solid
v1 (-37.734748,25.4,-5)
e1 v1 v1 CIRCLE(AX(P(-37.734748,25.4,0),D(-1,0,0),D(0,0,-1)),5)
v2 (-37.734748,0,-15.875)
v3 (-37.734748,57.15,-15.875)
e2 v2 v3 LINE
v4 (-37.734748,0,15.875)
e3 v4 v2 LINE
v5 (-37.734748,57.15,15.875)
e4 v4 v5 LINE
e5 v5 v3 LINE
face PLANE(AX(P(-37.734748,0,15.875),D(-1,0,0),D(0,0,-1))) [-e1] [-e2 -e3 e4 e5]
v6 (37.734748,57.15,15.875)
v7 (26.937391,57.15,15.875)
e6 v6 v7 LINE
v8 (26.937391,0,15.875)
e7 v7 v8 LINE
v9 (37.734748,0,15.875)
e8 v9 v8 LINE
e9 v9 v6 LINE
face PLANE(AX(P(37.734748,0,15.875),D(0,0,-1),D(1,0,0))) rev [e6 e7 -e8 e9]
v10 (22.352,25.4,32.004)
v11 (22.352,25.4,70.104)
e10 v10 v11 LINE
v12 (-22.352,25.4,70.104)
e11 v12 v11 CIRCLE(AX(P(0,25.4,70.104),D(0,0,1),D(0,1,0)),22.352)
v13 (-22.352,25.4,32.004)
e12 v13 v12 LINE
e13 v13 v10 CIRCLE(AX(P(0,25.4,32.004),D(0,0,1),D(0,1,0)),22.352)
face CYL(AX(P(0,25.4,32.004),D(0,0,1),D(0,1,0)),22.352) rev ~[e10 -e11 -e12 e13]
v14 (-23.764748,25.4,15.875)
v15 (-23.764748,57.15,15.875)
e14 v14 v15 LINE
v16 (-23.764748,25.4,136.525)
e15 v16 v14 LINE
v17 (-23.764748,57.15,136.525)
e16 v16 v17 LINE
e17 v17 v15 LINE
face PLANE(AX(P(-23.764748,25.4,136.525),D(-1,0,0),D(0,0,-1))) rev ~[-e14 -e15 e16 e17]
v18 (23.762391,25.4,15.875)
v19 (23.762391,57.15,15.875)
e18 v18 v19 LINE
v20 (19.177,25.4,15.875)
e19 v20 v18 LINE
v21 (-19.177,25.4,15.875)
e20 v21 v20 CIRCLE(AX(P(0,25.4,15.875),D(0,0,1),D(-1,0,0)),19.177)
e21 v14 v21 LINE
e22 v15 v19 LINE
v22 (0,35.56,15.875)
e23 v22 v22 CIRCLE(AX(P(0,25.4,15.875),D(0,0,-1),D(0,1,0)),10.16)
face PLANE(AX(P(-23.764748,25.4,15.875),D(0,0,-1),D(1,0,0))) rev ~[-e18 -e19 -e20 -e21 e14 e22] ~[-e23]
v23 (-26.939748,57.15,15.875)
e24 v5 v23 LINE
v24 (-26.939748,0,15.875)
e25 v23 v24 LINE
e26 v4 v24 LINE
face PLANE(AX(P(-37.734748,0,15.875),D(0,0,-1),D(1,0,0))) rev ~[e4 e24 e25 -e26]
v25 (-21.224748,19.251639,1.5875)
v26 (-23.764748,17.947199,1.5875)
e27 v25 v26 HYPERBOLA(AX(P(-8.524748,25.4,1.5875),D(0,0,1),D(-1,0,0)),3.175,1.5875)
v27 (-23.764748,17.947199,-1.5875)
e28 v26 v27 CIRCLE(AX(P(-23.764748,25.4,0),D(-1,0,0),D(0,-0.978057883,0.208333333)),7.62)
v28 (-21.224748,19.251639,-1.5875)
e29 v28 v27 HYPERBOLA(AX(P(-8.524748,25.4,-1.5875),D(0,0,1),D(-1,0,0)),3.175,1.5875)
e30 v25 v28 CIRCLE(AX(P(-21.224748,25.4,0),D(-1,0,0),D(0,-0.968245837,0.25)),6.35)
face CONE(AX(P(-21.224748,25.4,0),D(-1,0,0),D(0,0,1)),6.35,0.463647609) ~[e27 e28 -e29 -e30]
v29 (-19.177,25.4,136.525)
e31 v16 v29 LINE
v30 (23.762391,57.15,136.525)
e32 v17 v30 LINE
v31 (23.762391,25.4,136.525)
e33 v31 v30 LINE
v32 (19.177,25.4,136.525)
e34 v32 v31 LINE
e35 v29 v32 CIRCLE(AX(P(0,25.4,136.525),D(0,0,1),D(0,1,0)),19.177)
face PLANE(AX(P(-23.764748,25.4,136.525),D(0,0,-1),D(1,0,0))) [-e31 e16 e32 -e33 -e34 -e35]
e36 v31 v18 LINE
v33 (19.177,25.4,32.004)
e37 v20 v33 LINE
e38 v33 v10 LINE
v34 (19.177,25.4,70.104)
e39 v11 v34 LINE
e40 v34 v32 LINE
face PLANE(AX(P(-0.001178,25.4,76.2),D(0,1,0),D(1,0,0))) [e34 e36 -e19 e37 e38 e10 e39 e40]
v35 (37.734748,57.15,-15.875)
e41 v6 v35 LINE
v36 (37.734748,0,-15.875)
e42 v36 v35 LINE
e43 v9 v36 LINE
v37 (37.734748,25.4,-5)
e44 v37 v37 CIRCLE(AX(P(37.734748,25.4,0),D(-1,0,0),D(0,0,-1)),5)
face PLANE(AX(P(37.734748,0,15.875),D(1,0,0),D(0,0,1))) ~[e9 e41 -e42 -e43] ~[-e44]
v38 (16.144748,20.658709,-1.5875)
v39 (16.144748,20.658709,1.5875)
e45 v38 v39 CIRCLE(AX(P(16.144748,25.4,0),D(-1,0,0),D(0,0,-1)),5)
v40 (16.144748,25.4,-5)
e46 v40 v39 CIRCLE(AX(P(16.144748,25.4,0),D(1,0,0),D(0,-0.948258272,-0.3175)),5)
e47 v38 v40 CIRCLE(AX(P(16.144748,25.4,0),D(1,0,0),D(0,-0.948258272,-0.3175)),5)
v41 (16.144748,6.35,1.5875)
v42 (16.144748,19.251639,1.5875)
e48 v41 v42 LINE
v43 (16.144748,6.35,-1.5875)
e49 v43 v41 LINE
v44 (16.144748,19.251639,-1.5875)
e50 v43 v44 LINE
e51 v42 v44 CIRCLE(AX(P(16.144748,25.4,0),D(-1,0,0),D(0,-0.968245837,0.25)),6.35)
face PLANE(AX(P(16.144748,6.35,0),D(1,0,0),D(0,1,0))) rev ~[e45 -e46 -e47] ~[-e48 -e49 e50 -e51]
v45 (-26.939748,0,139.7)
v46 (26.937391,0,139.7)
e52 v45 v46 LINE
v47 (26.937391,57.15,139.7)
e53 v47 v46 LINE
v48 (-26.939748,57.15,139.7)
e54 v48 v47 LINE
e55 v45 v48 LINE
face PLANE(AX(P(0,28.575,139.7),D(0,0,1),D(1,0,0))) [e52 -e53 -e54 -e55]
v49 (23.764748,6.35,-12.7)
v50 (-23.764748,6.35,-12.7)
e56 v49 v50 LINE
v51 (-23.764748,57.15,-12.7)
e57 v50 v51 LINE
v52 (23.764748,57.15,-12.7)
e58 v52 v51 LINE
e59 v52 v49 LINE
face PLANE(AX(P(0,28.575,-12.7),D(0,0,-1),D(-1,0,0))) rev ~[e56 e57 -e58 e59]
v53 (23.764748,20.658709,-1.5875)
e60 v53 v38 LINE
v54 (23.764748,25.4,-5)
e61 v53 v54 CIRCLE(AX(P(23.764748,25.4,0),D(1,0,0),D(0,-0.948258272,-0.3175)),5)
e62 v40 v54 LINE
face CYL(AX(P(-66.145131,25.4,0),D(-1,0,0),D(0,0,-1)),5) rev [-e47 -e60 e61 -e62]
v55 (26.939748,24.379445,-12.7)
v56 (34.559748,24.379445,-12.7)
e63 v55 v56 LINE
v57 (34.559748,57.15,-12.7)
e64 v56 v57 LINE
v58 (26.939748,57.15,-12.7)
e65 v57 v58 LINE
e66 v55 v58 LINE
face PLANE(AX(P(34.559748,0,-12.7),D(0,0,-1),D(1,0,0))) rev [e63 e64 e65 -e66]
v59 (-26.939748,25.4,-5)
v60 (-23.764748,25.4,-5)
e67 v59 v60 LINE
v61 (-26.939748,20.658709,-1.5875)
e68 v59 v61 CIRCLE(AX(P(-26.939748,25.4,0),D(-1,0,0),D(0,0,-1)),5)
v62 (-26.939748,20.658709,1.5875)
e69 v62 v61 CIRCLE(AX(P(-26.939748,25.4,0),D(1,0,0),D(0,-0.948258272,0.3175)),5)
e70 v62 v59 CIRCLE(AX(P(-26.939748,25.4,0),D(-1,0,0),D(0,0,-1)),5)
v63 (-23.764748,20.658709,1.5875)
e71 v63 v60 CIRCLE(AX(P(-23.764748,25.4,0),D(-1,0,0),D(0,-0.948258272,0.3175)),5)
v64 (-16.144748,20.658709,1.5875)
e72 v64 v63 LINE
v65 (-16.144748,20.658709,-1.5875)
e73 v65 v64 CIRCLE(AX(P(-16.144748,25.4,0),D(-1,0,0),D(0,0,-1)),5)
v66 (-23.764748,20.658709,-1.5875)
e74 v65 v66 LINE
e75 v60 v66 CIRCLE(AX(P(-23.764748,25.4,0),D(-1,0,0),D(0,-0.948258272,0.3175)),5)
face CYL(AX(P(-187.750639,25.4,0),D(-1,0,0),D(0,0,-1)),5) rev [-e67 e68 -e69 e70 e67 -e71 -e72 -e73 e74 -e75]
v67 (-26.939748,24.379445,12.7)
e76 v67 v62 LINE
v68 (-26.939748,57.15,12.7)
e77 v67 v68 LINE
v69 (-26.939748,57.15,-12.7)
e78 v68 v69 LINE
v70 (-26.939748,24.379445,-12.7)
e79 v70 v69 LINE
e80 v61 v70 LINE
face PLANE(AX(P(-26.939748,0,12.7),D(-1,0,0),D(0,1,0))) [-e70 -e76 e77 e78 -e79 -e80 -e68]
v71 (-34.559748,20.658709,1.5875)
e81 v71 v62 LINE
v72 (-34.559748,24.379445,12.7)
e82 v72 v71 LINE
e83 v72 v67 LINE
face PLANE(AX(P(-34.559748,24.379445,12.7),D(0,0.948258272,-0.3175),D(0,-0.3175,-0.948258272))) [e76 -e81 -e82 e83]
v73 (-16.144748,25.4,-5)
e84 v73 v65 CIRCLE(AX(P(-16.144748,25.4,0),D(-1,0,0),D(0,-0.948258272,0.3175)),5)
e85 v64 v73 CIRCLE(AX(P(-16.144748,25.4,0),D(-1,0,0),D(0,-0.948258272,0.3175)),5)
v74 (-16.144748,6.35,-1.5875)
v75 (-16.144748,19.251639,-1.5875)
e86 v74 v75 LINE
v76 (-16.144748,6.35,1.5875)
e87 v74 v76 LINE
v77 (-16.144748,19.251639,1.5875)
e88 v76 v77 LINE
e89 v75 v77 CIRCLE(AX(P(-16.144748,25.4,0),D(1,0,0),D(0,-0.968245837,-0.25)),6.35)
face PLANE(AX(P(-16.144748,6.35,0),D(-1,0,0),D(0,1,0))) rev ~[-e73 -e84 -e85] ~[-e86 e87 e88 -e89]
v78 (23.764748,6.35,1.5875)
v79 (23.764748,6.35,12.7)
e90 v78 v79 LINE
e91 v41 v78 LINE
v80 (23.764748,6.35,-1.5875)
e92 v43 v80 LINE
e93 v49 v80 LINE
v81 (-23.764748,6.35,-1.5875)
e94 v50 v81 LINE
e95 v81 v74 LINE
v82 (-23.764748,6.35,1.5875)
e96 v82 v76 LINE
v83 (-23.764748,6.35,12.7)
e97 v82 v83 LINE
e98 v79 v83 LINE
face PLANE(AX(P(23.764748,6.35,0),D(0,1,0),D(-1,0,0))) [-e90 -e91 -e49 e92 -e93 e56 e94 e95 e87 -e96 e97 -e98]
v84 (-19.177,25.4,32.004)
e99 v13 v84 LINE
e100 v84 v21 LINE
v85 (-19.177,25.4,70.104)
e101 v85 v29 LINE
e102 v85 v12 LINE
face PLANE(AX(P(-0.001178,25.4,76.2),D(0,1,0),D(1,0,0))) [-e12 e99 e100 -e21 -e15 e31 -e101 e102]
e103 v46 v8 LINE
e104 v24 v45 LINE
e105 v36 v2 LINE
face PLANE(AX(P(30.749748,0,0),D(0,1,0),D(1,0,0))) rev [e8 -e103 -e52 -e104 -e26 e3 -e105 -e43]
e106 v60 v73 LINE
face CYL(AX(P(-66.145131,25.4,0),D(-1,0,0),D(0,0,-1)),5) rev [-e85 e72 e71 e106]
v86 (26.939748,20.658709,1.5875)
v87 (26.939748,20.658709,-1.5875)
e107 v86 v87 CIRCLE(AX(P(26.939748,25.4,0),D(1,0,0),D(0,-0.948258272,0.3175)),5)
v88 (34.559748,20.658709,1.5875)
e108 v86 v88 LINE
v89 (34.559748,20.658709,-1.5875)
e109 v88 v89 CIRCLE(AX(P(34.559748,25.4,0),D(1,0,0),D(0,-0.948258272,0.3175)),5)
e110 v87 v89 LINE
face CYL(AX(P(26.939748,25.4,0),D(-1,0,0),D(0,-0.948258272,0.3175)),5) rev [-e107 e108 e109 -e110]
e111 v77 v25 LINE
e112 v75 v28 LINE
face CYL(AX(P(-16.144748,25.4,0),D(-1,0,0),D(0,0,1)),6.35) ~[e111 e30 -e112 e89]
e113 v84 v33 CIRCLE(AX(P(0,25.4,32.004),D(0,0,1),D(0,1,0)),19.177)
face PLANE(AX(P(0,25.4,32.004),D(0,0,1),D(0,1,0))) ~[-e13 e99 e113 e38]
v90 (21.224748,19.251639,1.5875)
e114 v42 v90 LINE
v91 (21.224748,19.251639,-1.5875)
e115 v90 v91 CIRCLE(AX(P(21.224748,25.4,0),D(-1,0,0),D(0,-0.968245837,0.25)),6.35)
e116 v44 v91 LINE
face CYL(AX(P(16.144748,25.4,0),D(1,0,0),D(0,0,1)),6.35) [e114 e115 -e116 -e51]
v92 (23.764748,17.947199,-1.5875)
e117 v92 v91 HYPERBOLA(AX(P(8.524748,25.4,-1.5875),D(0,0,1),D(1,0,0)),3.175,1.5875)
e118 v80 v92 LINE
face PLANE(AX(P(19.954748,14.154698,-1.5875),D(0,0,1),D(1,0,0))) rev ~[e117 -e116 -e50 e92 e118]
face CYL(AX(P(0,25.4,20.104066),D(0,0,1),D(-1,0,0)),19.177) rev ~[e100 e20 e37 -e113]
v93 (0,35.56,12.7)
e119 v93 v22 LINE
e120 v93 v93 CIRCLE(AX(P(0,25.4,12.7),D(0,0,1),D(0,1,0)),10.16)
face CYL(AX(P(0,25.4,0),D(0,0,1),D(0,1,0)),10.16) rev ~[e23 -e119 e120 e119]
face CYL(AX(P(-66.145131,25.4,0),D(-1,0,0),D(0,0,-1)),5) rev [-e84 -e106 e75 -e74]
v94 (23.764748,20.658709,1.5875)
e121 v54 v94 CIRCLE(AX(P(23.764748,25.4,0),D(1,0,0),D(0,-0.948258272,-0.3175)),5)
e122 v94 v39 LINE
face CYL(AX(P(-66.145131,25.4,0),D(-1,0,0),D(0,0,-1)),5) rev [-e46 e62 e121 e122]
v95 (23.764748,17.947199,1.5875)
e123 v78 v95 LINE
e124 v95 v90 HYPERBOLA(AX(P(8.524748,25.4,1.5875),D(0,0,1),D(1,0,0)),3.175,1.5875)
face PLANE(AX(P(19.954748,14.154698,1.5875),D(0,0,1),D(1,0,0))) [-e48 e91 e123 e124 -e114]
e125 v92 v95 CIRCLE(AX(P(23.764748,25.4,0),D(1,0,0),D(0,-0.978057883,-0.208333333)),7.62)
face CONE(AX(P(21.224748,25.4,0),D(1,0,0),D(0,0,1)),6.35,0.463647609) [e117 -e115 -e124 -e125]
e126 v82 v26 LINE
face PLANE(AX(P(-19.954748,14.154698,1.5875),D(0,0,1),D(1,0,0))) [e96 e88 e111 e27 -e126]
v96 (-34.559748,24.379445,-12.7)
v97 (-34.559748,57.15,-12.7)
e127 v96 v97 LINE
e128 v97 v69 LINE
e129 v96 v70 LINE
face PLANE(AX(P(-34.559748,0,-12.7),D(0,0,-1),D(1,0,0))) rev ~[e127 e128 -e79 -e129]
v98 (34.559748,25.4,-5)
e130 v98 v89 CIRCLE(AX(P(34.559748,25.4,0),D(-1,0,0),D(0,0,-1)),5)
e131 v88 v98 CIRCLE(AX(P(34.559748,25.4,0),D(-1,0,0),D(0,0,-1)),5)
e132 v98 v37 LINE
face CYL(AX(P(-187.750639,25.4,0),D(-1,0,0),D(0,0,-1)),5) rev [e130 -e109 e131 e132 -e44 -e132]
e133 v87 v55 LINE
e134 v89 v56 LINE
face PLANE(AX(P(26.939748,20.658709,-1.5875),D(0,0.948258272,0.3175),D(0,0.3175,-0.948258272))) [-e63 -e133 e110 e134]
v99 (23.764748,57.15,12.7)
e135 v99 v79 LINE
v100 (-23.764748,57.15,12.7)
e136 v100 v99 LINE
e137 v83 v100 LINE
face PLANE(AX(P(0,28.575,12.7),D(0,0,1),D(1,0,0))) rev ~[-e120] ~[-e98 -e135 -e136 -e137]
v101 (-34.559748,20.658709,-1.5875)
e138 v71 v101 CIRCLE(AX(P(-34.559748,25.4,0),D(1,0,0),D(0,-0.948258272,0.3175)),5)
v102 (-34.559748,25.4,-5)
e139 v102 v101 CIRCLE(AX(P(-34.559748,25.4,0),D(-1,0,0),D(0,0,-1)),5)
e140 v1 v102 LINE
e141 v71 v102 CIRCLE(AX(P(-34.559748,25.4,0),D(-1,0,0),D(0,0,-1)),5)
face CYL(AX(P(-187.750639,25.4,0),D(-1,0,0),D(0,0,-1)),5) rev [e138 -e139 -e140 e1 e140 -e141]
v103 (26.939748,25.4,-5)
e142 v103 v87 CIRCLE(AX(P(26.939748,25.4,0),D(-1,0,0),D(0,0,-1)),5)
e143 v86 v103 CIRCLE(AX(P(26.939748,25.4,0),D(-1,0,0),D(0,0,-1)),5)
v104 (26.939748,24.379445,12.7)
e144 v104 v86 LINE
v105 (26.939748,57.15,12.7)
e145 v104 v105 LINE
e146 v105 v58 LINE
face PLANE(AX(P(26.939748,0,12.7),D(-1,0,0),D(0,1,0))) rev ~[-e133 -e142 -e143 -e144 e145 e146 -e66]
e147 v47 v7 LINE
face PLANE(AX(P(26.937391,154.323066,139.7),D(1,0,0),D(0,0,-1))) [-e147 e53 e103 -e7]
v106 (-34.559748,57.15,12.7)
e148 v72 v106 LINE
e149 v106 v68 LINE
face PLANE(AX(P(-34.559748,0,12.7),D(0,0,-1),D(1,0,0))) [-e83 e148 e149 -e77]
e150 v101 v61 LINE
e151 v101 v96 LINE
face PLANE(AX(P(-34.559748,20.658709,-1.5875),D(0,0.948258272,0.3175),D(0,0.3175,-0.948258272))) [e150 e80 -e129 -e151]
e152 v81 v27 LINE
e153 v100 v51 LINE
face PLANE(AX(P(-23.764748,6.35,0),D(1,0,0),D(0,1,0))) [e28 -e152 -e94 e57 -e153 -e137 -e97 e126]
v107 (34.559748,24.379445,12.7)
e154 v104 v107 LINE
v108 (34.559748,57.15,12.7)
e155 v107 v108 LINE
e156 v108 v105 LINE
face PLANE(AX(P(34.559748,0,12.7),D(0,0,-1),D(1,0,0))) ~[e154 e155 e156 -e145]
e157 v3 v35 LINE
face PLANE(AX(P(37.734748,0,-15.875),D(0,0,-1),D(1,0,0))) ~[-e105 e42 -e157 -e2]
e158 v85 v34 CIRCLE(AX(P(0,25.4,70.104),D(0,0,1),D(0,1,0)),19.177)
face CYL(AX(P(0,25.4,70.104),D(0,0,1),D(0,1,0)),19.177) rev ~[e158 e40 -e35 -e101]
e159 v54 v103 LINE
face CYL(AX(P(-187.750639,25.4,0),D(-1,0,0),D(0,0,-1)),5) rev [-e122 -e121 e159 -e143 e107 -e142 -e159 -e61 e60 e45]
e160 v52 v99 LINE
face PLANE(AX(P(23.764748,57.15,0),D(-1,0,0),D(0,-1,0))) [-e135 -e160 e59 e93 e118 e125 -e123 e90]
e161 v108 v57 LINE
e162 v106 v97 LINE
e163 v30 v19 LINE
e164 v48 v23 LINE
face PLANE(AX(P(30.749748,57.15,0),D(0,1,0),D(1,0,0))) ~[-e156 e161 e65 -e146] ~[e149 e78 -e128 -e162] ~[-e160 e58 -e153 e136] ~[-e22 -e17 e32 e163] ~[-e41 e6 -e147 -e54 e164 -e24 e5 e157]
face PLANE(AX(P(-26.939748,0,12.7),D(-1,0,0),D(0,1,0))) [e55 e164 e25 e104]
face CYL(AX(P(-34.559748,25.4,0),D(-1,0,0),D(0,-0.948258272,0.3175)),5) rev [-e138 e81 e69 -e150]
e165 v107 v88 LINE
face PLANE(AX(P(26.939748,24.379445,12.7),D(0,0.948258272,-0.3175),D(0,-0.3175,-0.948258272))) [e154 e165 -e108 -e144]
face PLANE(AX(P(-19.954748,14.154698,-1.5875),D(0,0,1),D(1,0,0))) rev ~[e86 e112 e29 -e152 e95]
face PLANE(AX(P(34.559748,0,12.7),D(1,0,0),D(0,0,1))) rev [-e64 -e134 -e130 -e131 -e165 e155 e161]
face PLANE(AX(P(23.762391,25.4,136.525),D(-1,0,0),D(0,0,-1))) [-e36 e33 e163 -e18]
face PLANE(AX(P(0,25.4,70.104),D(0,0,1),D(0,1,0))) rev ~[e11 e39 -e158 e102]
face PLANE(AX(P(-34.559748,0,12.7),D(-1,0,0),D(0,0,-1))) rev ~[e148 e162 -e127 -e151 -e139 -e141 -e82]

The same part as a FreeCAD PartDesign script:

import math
import FreeCAD as App
import Part
import Sketcher
from FreeCAD import Vector
Q = App.Units.Quantity


def add_polygon(sketch, points):
    """Adds a closed chain of lines whose ends are joined by coincident constraints."""
    first, n = sketch.GeometryCount, len(points)
    for a, b in zip(points, points[1:] + points[:1]):
        sketch.addGeometry(Part.LineSegment(App.Vector(*a, 0), App.Vector(*b, 0)), False)
    for i in range(n):
        sketch.addConstraint(Sketcher.Constraint("Coincident", first + i, 2, first + (i + 1) % n, 1))

doc = App.newDocument("Part")
body = doc.addObject("PartDesign::Body", "Body")

# Sketch on XY plane
sketch1 = body.newObject("Sketcher::SketchObject", "Sketch")
sketch1.AttachmentSupport = (doc.getObject("XY_Plane"), [""])
sketch1.MapMode = "FlatFace"
add_polygon(sketch1, [(-26.9, 0), (26.9, 0), (26.9, 57.1), (23.8, 57.1), (23.8, 6.3), (-23.8, 6.3), (-23.8, 57.1), (-26.9, 57.1)])  # lines 0-7
sketch1.addConstraint([
    Sketcher.Constraint("Horizontal", 0),
    Sketcher.Constraint("Vertical", 1),
    Sketcher.Constraint("Horizontal", 2),
    Sketcher.Constraint("Vertical", 3),
    Sketcher.Constraint("Horizontal", 4),
    Sketcher.Constraint("Vertical", 5),
    Sketcher.Constraint("Horizontal", 6),
    Sketcher.Constraint("Vertical", 7),
    Sketcher.Constraint("Symmetric", 0, 2, 7, 2, -1, 1),
    Sketcher.Constraint("Symmetric", 2, 2, 5, 2, -2),
    Sketcher.Constraint("DistanceY", 3, 2, 3, 1, Q("2 in")),
    Sketcher.Constraint("DistanceY", 1, 1, 1, 2, Q("2.25 in")),
    Sketcher.Constraint("DistanceX", 2, 2, 2, 1, Q("0.125 in")),
    Sketcher.Constraint("DistanceX", 0, 1, 0, 2, 53.879496),
])
pad1 = body.newObject("PartDesign::Pad", "Pad")
pad1.Profile = sketch1
pad1.Length = Q("1 in")
pad1.Midplane = True

# Sketch on XY plane
sketch2 = body.newObject("Sketcher::SketchObject", "Sketch001")
sketch2.AttachmentSupport = (doc.getObject("XY_Plane"), [""])
sketch2.MapMode = "FlatFace"
sketch2.AttachmentOffset = App.Placement(Vector(0, 0, -0.5 * 25.4), App.Rotation())
add_polygon(sketch2, [(27, 57), (27, 0), (-27, 0), (-27, 57)])  # lines 0-3
sketch2.addConstraint([
    Sketcher.Constraint("Vertical", 0),
    Sketcher.Constraint("Horizontal", 1),
    Sketcher.Constraint("Vertical", 2),
    Sketcher.Constraint("Horizontal", 3),
    Sketcher.Constraint("Symmetric", 0, 2, 1, 2, -1, 1),
    Sketcher.Constraint("DistanceY", 0, 2, 0, 1, Q("2.25 in")),
    Sketcher.Constraint("DistanceX", 1, 2, 1, 1, 53.879496),
])
pad2 = body.newObject("PartDesign::Pad", "Pad001")
pad2.Profile = sketch2
pad2.Length = Q("0.125 in")
pad2.Reversed = True

# Sketch on XY plane
sketch3 = body.newObject("Sketcher::SketchObject", "Sketch002")
sketch3.AttachmentSupport = (doc.getObject("XY_Plane"), [""])
sketch3.MapMode = "FlatFace"
add_polygon(sketch3, [(-23.8, 25.4), (-16.1, 25.4), (-16.1, 31.8), (-21.2, 31.8), (-23.8, 33)])  # lines 0-4
add_polygon(sketch3, [(23.8, 25.4), (23.8, 33), (21.2, 31.8), (16.1, 31.8), (16.1, 25.4)])  # lines 5-9
sketch3.addGeometry(Part.LineSegment(Vector(-23.8, 25.4, 0), Vector(23.8, 25.4, 0)), True)  # axis
sketch3.addConstraint([
    Sketcher.Constraint("Horizontal", 0),
    Sketcher.Constraint("Vertical", 1),
    Sketcher.Constraint("Horizontal", 2),
    Sketcher.Constraint("Vertical", 4),
    Sketcher.Constraint("Vertical", 5),
    Sketcher.Constraint("Horizontal", 7),
    Sketcher.Constraint("Vertical", 8),
    Sketcher.Constraint("Horizontal", 9),
    Sketcher.Constraint("Horizontal", 10),
    Sketcher.Constraint("Coincident", 10, 1, 4, 2),
    Sketcher.Constraint("Coincident", 10, 2, 9, 2),
    Sketcher.Constraint("Symmetric", 3, 2, 5, 2, -2),
    Sketcher.Constraint("Symmetric", 2, 2, 6, 2, -2),
    Sketcher.Constraint("Equal", 2, 7),
    Sketcher.Constraint("Equal", 9, 4),
    Sketcher.Constraint("DistanceX", 0, 1, 0, 2, Q("0.3 in")),
    Sketcher.Constraint("DistanceX", 2, 2, 2, 1, Q("0.2 in")),
    Sketcher.Constraint("DistanceY", -1, 1, 0, 2, Q("1 in")),
    Sketcher.Constraint("DistanceY", 1, 1, 1, 2, Q("0.25 in")),
    Sketcher.Constraint("DistanceX", 10, 1, 10, 2, 47.529496),
])
revolution = body.newObject("PartDesign::Revolution", "Revolution")
revolution.Profile = sketch3
revolution.ReferenceAxis = (sketch3, ["Axis0"])
revolution.Angle = 360

# Sketch on YZ plane
sketch4 = body.newObject("Sketcher::SketchObject", "Sketch003")
sketch4.AttachmentSupport = (doc.getObject("YZ_Plane"), [""])
sketch4.MapMode = "FlatFace"
sketch4.addGeometry(Part.Circle(Vector(25, 0, 0), Vector(0, 0, 1), 5), False)
sketch4.addConstraint([
    Sketcher.Constraint("PointOnObject", 0, 3, -1),
    Sketcher.Constraint("DistanceX", -1, 1, 0, 3, Q("1 in")),
    Sketcher.Constraint("Diameter", 0, 10.0),
])
pocket1 = body.newObject("PartDesign::Pocket", "Pocket")
pocket1.Profile = sketch4
pocket1.Type = "ThroughAll"
pocket1.Midplane = True

# Sketch on XZ plane
sketch5 = body.newObject("Sketcher::SketchObject", "Sketch004")
sketch5.AttachmentSupport = (doc.getObject("XZ_Plane"), [""])
sketch5.MapMode = "FlatFace"
add_polygon(sketch5, [(-26.9, -15.9), (-26.9, -41.3), (26.9, -41.3), (26.9, -15.9)])  # lines 0-3
sketch5.addGeometry(Part.Circle(Vector(-17.5, -28.6, 0), Vector(0, 0, 1), 3.5), False)  # 4
sketch5.addGeometry(Part.Circle(Vector(7.9, -28.6, 0), Vector(0, 0, 1), 3.5), False)  # 5
sketch5.addConstraint([
    Sketcher.Constraint("Vertical", 0),
    Sketcher.Constraint("Horizontal", 1),
    Sketcher.Constraint("Vertical", 2),
    Sketcher.Constraint("Horizontal", 3),
    Sketcher.Constraint("Equal", 4, 5),
    Sketcher.Constraint("Horizontal", 4, 3, 5, 3),
    Sketcher.Constraint("DistanceY", 0, 2, 0, 1, Q("1 in")),
    Sketcher.Constraint("Diameter", 4, Q("0.275 in")),
    Sketcher.Constraint("DistanceX", 4, 3, 5, 3, Q("1 in")),
    Sketcher.Constraint("DistanceY", 0, 2, 4, 3, Q("0.5 in")),
    Sketcher.Constraint("DistanceX", 5, 3, 1, 2, Q("0.75 in")),
    Sketcher.Constraint("DistanceY", 4, 3, -1, 1, Q("1.125 in")),
    Sketcher.Constraint("DistanceX", 1, 1, 1, 2, 53.879496),
    Sketcher.Constraint("DistanceX", 0, 2, -1, 1, 26.939748),
])
pad3 = body.newObject("PartDesign::Pad", "Pad002")
pad3.Profile = sketch5
pad3.Length = Q("0.25 in")
pad3.Reversed = True

# Sketch on XY plane
sketch6 = body.newObject("Sketcher::SketchObject", "Sketch005")
sketch6.AttachmentSupport = (doc.getObject("XY_Plane"), [""])
sketch6.MapMode = "FlatFace"
add_polygon(sketch6, [(-24, 22), (-24, 6), (-16, 6), (-16, 22)])  # lines 0-3
add_polygon(sketch6, [(16, 22), (16, 6), (24, 6), (24, 22)])  # lines 4-7
sketch6.addConstraint([
    Sketcher.Constraint("Vertical", 0),
    Sketcher.Constraint("Horizontal", 1),
    Sketcher.Constraint("Vertical", 2),
    Sketcher.Constraint("Horizontal", 3),
    Sketcher.Constraint("Vertical", 4),
    Sketcher.Constraint("Horizontal", 5),
    Sketcher.Constraint("Vertical", 6),
    Sketcher.Constraint("Horizontal", 7),
    Sketcher.Constraint("Symmetric", 1, 2, 4, 2, -2),
    Sketcher.Constraint("Symmetric", 3, 2, 6, 2, -2),
    Sketcher.Constraint("DistanceX", 1, 1, 1, 2, Q("0.3 in")),
    Sketcher.Constraint("DistanceY", -1, 1, 0, 2, Q("0.25 in")),
    Sketcher.Constraint("DistanceY", 0, 2, 0, 1, 15.609397),
    Sketcher.Constraint("DistanceX", 0, 2, -1, 1, 23.764748),
])
pad4 = body.newObject("PartDesign::Pad", "Pad003")
pad4.Profile = sketch6
pad4.Length = Q("0.125 in")
pad4.Midplane = True

# Sketch on XY plane
sketch7 = body.newObject("Sketcher::SketchObject", "Sketch006")
sketch7.AttachmentSupport = (doc.getObject("XY_Plane"), [""])
sketch7.MapMode = "FlatFace"
sketch7.AttachmentOffset = App.Placement(Vector(0, 0, 0.5 * 25.4), App.Rotation())
add_polygon(sketch7, [(-27, 57), (-27, 0), (27, 0), (27, 57)])  # lines 0-3
sketch7.addConstraint([
    Sketcher.Constraint("Vertical", 0),
    Sketcher.Constraint("Horizontal", 1),
    Sketcher.Constraint("Vertical", 2),
    Sketcher.Constraint("Horizontal", 3),
    Sketcher.Constraint("Symmetric", 0, 2, 1, 2, -1, 1),
    Sketcher.Constraint("DistanceY", 0, 2, 0, 1, Q("2.25 in")),
    Sketcher.Constraint("DistanceX", 1, 1, 1, 2, 53.879496),
])
pad5 = body.newObject("PartDesign::Pad", "Pad004")
pad5.Profile = sketch7
pad5.Length = Q("5 in")

# Sketch on YZ plane
sketch8 = body.newObject("Sketcher::SketchObject", "Sketch007")
sketch8.AttachmentSupport = (doc.getObject("YZ_Plane"), [""])
sketch8.MapMode = "FlatFace"
add_polygon(sketch8, [(47.8, 70.1), (44.6, 70.1), (44.6, 136.5), (25.4, 136.5), (25.4, 0), (35.6, 0), (35.6, 20.1), (44.6, 20.1), (44.6, 32), (47.8, 32)])  # lines 0-9
sketch8.addGeometry(Part.LineSegment(Vector(25.4, 0, 0), Vector(25.4, 136.5, 0)), True)  # axis
sketch8.addConstraint([
    Sketcher.Constraint("Horizontal", 0),
    Sketcher.Constraint("Vertical", 1),
    Sketcher.Constraint("Horizontal", 2),
    Sketcher.Constraint("Vertical", 3),
    Sketcher.Constraint("Horizontal", 4),
    Sketcher.Constraint("Vertical", 5),
    Sketcher.Constraint("Horizontal", 6),
    Sketcher.Constraint("Vertical", 7),
    Sketcher.Constraint("Horizontal", 8),
    Sketcher.Constraint("Vertical", 9),
    Sketcher.Constraint("Vertical", 10),
    Sketcher.Constraint("Coincident", 10, 1, 3, 2),
    Sketcher.Constraint("PointOnObject", 3, 2, -1),
    Sketcher.Constraint("Horizontal", 1, 2, 10, 2),
    Sketcher.Constraint("Vertical", 1, 2, 6, 2),
    Sketcher.Constraint("DistanceX", 4, 1, 4, 2, Q("0.4 in")),
    Sketcher.Constraint("DistanceY", 9, 1, 9, 2, Q("1.5 in")),
    Sketcher.Constraint("DistanceX", -1, 1, 2, 2, Q("1 in")),
    Sketcher.Constraint("DistanceX", 0, 2, 0, 1, Q("0.125 in")),
    Sketcher.Constraint("DistanceX", 2, 2, 2, 1, Q("0.755 in")),
    Sketcher.Constraint("DistanceY", 1, 1, 1, 2, Q("2.615 in")),
    Sketcher.Constraint("DistanceY", 3, 2, 3, 1, Q("5.375 in")),
    Sketcher.Constraint("DistanceY", 5, 1, 5, 2, 20.104066),
])
groove = body.newObject("PartDesign::Groove", "Groove")
groove.Profile = sketch8
groove.ReferenceAxis = (sketch8, ["Axis0"])
groove.Angle = 360

# Sketch on XZ plane
sketch9 = body.newObject("Sketcher::SketchObject", "Sketch008")
sketch9.AttachmentSupport = (doc.getObject("XZ_Plane"), [""])
sketch9.MapMode = "FlatFace"
add_polygon(sketch9, [(-26.939748, 15.470939), (-26.939748, 139.7), (-26.942105, 139.7), (-26.942105, 15.470939)])  # lines 0-3
add_polygon(sketch9, [(26.939748, 15.470939), (26.939748, 139.7), (26.937391, 139.7), (26.937391, 15.470939)])  # lines 4-7
sketch9.addConstraint([
    Sketcher.Constraint("Vertical", 0),
    Sketcher.Constraint("Horizontal", 1),
    Sketcher.Constraint("Vertical", 2),
    Sketcher.Constraint("Horizontal", 3),
    Sketcher.Constraint("Vertical", 4),
    Sketcher.Constraint("Horizontal", 5),
    Sketcher.Constraint("Vertical", 6),
    Sketcher.Constraint("Horizontal", 7),
    Sketcher.Constraint("Symmetric", 0, 2, 4, 2, -2),
    Sketcher.Constraint("Horizontal", 3, 2, 6, 2),
    Sketcher.Constraint("Equal", 3, 5),
    Sketcher.Constraint("DistanceY", -1, 1, 0, 2, Q("5.5 in")),
    Sketcher.Constraint("DistanceY", 0, 1, 0, 2, 124.229061),
    Sketcher.Constraint("DistanceX", 1, 2, 1, 1, 0.002357),
    Sketcher.Constraint("DistanceX", 0, 2, -1, 1, 26.939748),
])
pocket2 = body.newObject("PartDesign::Pocket", "Pocket001")
pocket2.Profile = sketch9
pocket2.Type = "ThroughAll"
pocket2.Midplane = True

# Sketch on XZ plane
sketch10 = body.newObject("Sketcher::SketchObject", "Sketch009")
sketch10.AttachmentSupport = (doc.getObject("XZ_Plane"), [""])
sketch10.MapMode = "FlatFace"
sketch10.AttachmentOffset = App.Placement(Vector(0, 0, -1 * 25.4), App.Rotation())
add_polygon(sketch10, [(-24, 16), (-24, 137), (24, 137), (24, 16)])  # lines 0-3
sketch10.addConstraint([
    Sketcher.Constraint("Vertical", 0),
    Sketcher.Constraint("Horizontal", 1),
    Sketcher.Constraint("Vertical", 2),
    Sketcher.Constraint("Horizontal", 3),
    Sketcher.Constraint("DistanceY", 0, 1, 0, 2, Q("4.75 in")),
    Sketcher.Constraint("DistanceY", -1, 1, 0, 2, Q("5.375 in")),
    Sketcher.Constraint("DistanceX", 1, 1, 1, 2, 47.527139),
    Sketcher.Constraint("DistanceX", 0, 2, -1, 1, 23.764748),
])
pocket3 = body.newObject("PartDesign::Pocket", "Pocket002")
pocket3.Profile = sketch10
pocket3.Length = Q("1.25 in")

# Sketch on XY plane
sketch11 = body.newObject("Sketcher::SketchObject", "Sketch010")
sketch11.AttachmentSupport = (doc.getObject("XY_Plane"), [""])
sketch11.MapMode = "FlatFace"
sketch11.AttachmentOffset = App.Placement(Vector(0, 0, 20.104066), App.Rotation())
sketch11.addGeometry([
    Part.LineSegment(Vector(-10, 25, 0), Vector(-19, 25, 0)),
    Part.ArcOfCircle(Part.Circle(Vector(0, 25, 0), Vector(0, 0, 1), 19), math.radians(180), math.radians(360)),
    Part.LineSegment(Vector(19, 25, 0), Vector(10, 25, 0)),
    Part.ArcOfCircle(Part.Circle(Vector(0, 25, 0), Vector(0, 0, 1), 10), math.radians(180), math.radians(360)),
], False)
sketch11.addConstraint([
    Sketcher.Constraint("Coincident", 0, 2, 1, 1),
    Sketcher.Constraint("Coincident", 1, 2, 2, 1),
    Sketcher.Constraint("Coincident", 2, 2, 3, 2),
    Sketcher.Constraint("Coincident", 3, 1, 0, 1),
    Sketcher.Constraint("Horizontal", 0),
    Sketcher.Constraint("Horizontal", 2),
    Sketcher.Constraint("Coincident", 3, 3, 1, 3),
    Sketcher.Constraint("Symmetric", 0, 2, 1, 2, -2),
    Sketcher.Constraint("Horizontal", 3, 3, 0, 2),
    Sketcher.Constraint("Radius", 3, Q("0.4 in")),
    Sketcher.Constraint("DistanceY", -1, 1, 1, 3, Q("1 in")),
    Sketcher.Constraint("Radius", 1, Q("0.755 in")),
])
pocket4 = body.newObject("PartDesign::Pocket", "Pocket003")
pocket4.Profile = sketch11
pocket4.Length = 4.229066

# Sketch on XZ plane
sketch12 = body.newObject("Sketcher::SketchObject", "Sketch011")
sketch12.AttachmentSupport = (doc.getObject("XZ_Plane"), [""])
sketch12.MapMode = "FlatFace"
sketch12.AttachmentOffset = App.Placement(Vector(0, 0, -0.25 * 25.4), App.Rotation())
add_polygon(sketch12, [(-27, -41), (-27, -16), (27, -16), (27, -41)])  # lines 0-3
sketch12.addConstraint([
    Sketcher.Constraint("Vertical", 0),
    Sketcher.Constraint("Horizontal", 1),
    Sketcher.Constraint("Vertical", 2),
    Sketcher.Constraint("Horizontal", 3),
    Sketcher.Constraint("DistanceY", 0, 1, 0, 2, Q("1 in")),
    Sketcher.Constraint("DistanceY", 0, 2, -1, 1, Q("0.625 in")),
    Sketcher.Constraint("DistanceX", 1, 1, 1, 2, 53.879496),
    Sketcher.Constraint("DistanceX", 0, 2, -1, 1, 26.939748),
])
pocket5 = body.newObject("PartDesign::Pocket", "Pocket004")
pocket5.Profile = sketch12
pocket5.Type = "ThroughAll"
pocket5.Reversed = True

# Sketch on XZ plane
sketch13 = body.newObject("Sketcher::SketchObject", "Sketch012")
sketch13.AttachmentSupport = (doc.getObject("XZ_Plane"), [""])
sketch13.MapMode = "FlatFace"
add_polygon(sketch13, [(-38, -16), (-38, 16), (-24, 16), (-24, -16)])  # lines 0-3
add_polygon(sketch13, [(-27, 13), (-35, 13), (-35, -13), (-27, -13)])  # lines 4-7
sketch13.addConstraint([
    Sketcher.Constraint("Vertical", 0),
    Sketcher.Constraint("Horizontal", 1),
    Sketcher.Constraint("Vertical", 2),
    Sketcher.Constraint("Horizontal", 3),
    Sketcher.Constraint("Horizontal", 4),
    Sketcher.Constraint("Vertical", 5),
    Sketcher.Constraint("Horizontal", 6),
    Sketcher.Constraint("Vertical", 7),
    Sketcher.Constraint("DistanceY", 5, 2, 5, 1, Q("1 in")),
    Sketcher.Constraint("DistanceX", 4, 2, 4, 1, Q("0.3 in")),
    Sketcher.Constraint("DistanceX", 1, 1, 1, 2, Q("0.55 in")),
    Sketcher.Constraint("DistanceY", 0, 1, 0, 2, Q("1.25 in")),
    Sketcher.Constraint("DistanceY", -1, 1, 4, 2, Q("0.5 in")),
    Sketcher.Constraint("DistanceY", -1, 1, 0, 2, Q("0.625 in")),
    Sketcher.Constraint("DistanceX", 0, 2, 4, 2, Q("0.125 in")),
    Sketcher.Constraint("DistanceX", 0, 2, -1, 1, 37.734748),
])
pad6 = body.newObject("PartDesign::Pad", "Pad005")
pad6.Profile = sketch13
pad6.Length = Q("2.25 in")
pad6.Reversed = True

# Sketch on YZ plane
sketch14 = body.newObject("Sketcher::SketchObject", "Sketch013")
sketch14.AttachmentSupport = (doc.getObject("YZ_Plane"), [""])
sketch14.MapMode = "FlatFace"
sketch14.AttachmentOffset = App.Placement(Vector(0, 0, -34.559748), App.Rotation())
sketch14.addGeometry([
    Part.LineSegment(Vector(24.4, -12.7, 0), Vector(20.7, -1.6, 0)),  # 0
    Part.ArcOfCircle(Part.Circle(Vector(25.4, 0, 0), Vector(0, 0, 1), 5), math.radians(161), math.radians(199)),  # 1
    Part.LineSegment(Vector(20.7, 1.6, 0), Vector(24.4, 12.7, 0)),  # 2
    Part.LineSegment(Vector(24.4, 12.7, 0), Vector(0, 12.7, 0)),  # 3
    Part.LineSegment(Vector(0, 12.7, 0), Vector(0, -12.7, 0)),  # 4
    Part.LineSegment(Vector(0, -12.7, 0), Vector(24.4, -12.7, 0)),  # 5
], False)
sketch14.addConstraint([
    Sketcher.Constraint("Tangent", 0, 2, 1, 2),
    Sketcher.Constraint("Tangent", 1, 1, 2, 1),
    Sketcher.Constraint("Coincident", 2, 2, 3, 1),
    Sketcher.Constraint("Coincident", 3, 2, 4, 1),
    Sketcher.Constraint("Coincident", 4, 2, 5, 1),
    Sketcher.Constraint("Coincident", 5, 2, 0, 1),
    Sketcher.Constraint("Horizontal", 3),
    Sketcher.Constraint("Vertical", 4),
    Sketcher.Constraint("Horizontal", 5),
    Sketcher.Constraint("Symmetric", 3, 2, 4, 2, -1, 1),
    Sketcher.Constraint("Symmetric", 0, 2, 1, 1, -1),
    Sketcher.Constraint("DistanceY", 4, 2, 4, 1, Q("1 in")),
    Sketcher.Constraint("DistanceX", -1, 1, 1, 3, Q("1 in")),
    Sketcher.Constraint("Radius", 1, 5.0),
    Sketcher.Constraint("DistanceY", 0, 2, -1, 1, Q("0.0625 in")),
])
pad7 = body.newObject("PartDesign::Pad", "Pad006")
pad7.Profile = sketch14
pad7.Length = Q("0.3 in")
doc.recompute()

mirrored = body.newObject("PartDesign::Mirrored", "Mirrored")
mirrored.Originals = [pad6]
mirrored.MirrorPlane = (doc.getObject("YZ_Plane"), [""])
body.Tip = mirrored

# Sketch on YZ plane
sketch15 = body.newObject("Sketcher::SketchObject", "Sketch014")
sketch15.AttachmentSupport = (doc.getObject("YZ_Plane"), [""])
sketch15.MapMode = "FlatFace"
sketch15.AttachmentOffset = App.Placement(Vector(0, 0, 26.939748), App.Rotation())
sketch15.addGeometry([
    Part.LineSegment(Vector(24.4, -12.7, 0), Vector(20.7, -1.6, 0)),  # 0
    Part.ArcOfCircle(Part.Circle(Vector(25.4, 0, 0), Vector(0, 0, 1), 5), math.radians(161), math.radians(199)),  # 1
    Part.LineSegment(Vector(20.7, 1.6, 0), Vector(24.4, 12.7, 0)),  # 2
    Part.LineSegment(Vector(24.4, 12.7, 0), Vector(0, 12.7, 0)),  # 3
    Part.LineSegment(Vector(0, 12.7, 0), Vector(0, -12.7, 0)),  # 4
    Part.LineSegment(Vector(0, -12.7, 0), Vector(24.4, -12.7, 0)),  # 5
], False)
sketch15.addConstraint([
    Sketcher.Constraint("Tangent", 0, 2, 1, 2),
    Sketcher.Constraint("Tangent", 1, 1, 2, 1),
    Sketcher.Constraint("Coincident", 2, 2, 3, 1),
    Sketcher.Constraint("Coincident", 3, 2, 4, 1),
    Sketcher.Constraint("Coincident", 4, 2, 5, 1),
    Sketcher.Constraint("Coincident", 5, 2, 0, 1),
    Sketcher.Constraint("Horizontal", 3),
    Sketcher.Constraint("Vertical", 4),
    Sketcher.Constraint("Horizontal", 5),
    Sketcher.Constraint("Symmetric", 3, 2, 4, 2, -1, 1),
    Sketcher.Constraint("Symmetric", 0, 2, 1, 1, -1),
    Sketcher.Constraint("DistanceY", 4, 2, 4, 1, Q("1 in")),
    Sketcher.Constraint("DistanceX", -1, 1, 1, 3, Q("1 in")),
    Sketcher.Constraint("Radius", 1, 5.0),
    Sketcher.Constraint("DistanceY", 0, 2, -1, 1, Q("0.0625 in")),
])
pad8 = body.newObject("PartDesign::Pad", "Pad007")
pad8.Profile = sketch15
pad8.Length = Q("0.3 in")

# Sketch on YZ plane
sketch16 = body.newObject("Sketcher::SketchObject", "Sketch015")
sketch16.AttachmentSupport = (doc.getObject("YZ_Plane"), [""])
sketch16.MapMode = "FlatFace"
sketch16.AttachmentOffset = App.Placement(Vector(0, 0, -23.764748), App.Rotation())
sketch16.addGeometry(Part.Circle(Vector(25, 0, 0), Vector(0, 0, 1), 5), False)
sketch16.addConstraint([
    Sketcher.Constraint("PointOnObject", 0, 3, -1),
    Sketcher.Constraint("DistanceX", -1, 1, 0, 3, Q("1 in")),
    Sketcher.Constraint("Diameter", 0, 10.0),
])
pocket6 = body.newObject("PartDesign::Pocket", "Pocket005")
pocket6.Profile = sketch16
pocket6.Type = "ThroughAll"
pocket6.Midplane = True

doc.recompute()
